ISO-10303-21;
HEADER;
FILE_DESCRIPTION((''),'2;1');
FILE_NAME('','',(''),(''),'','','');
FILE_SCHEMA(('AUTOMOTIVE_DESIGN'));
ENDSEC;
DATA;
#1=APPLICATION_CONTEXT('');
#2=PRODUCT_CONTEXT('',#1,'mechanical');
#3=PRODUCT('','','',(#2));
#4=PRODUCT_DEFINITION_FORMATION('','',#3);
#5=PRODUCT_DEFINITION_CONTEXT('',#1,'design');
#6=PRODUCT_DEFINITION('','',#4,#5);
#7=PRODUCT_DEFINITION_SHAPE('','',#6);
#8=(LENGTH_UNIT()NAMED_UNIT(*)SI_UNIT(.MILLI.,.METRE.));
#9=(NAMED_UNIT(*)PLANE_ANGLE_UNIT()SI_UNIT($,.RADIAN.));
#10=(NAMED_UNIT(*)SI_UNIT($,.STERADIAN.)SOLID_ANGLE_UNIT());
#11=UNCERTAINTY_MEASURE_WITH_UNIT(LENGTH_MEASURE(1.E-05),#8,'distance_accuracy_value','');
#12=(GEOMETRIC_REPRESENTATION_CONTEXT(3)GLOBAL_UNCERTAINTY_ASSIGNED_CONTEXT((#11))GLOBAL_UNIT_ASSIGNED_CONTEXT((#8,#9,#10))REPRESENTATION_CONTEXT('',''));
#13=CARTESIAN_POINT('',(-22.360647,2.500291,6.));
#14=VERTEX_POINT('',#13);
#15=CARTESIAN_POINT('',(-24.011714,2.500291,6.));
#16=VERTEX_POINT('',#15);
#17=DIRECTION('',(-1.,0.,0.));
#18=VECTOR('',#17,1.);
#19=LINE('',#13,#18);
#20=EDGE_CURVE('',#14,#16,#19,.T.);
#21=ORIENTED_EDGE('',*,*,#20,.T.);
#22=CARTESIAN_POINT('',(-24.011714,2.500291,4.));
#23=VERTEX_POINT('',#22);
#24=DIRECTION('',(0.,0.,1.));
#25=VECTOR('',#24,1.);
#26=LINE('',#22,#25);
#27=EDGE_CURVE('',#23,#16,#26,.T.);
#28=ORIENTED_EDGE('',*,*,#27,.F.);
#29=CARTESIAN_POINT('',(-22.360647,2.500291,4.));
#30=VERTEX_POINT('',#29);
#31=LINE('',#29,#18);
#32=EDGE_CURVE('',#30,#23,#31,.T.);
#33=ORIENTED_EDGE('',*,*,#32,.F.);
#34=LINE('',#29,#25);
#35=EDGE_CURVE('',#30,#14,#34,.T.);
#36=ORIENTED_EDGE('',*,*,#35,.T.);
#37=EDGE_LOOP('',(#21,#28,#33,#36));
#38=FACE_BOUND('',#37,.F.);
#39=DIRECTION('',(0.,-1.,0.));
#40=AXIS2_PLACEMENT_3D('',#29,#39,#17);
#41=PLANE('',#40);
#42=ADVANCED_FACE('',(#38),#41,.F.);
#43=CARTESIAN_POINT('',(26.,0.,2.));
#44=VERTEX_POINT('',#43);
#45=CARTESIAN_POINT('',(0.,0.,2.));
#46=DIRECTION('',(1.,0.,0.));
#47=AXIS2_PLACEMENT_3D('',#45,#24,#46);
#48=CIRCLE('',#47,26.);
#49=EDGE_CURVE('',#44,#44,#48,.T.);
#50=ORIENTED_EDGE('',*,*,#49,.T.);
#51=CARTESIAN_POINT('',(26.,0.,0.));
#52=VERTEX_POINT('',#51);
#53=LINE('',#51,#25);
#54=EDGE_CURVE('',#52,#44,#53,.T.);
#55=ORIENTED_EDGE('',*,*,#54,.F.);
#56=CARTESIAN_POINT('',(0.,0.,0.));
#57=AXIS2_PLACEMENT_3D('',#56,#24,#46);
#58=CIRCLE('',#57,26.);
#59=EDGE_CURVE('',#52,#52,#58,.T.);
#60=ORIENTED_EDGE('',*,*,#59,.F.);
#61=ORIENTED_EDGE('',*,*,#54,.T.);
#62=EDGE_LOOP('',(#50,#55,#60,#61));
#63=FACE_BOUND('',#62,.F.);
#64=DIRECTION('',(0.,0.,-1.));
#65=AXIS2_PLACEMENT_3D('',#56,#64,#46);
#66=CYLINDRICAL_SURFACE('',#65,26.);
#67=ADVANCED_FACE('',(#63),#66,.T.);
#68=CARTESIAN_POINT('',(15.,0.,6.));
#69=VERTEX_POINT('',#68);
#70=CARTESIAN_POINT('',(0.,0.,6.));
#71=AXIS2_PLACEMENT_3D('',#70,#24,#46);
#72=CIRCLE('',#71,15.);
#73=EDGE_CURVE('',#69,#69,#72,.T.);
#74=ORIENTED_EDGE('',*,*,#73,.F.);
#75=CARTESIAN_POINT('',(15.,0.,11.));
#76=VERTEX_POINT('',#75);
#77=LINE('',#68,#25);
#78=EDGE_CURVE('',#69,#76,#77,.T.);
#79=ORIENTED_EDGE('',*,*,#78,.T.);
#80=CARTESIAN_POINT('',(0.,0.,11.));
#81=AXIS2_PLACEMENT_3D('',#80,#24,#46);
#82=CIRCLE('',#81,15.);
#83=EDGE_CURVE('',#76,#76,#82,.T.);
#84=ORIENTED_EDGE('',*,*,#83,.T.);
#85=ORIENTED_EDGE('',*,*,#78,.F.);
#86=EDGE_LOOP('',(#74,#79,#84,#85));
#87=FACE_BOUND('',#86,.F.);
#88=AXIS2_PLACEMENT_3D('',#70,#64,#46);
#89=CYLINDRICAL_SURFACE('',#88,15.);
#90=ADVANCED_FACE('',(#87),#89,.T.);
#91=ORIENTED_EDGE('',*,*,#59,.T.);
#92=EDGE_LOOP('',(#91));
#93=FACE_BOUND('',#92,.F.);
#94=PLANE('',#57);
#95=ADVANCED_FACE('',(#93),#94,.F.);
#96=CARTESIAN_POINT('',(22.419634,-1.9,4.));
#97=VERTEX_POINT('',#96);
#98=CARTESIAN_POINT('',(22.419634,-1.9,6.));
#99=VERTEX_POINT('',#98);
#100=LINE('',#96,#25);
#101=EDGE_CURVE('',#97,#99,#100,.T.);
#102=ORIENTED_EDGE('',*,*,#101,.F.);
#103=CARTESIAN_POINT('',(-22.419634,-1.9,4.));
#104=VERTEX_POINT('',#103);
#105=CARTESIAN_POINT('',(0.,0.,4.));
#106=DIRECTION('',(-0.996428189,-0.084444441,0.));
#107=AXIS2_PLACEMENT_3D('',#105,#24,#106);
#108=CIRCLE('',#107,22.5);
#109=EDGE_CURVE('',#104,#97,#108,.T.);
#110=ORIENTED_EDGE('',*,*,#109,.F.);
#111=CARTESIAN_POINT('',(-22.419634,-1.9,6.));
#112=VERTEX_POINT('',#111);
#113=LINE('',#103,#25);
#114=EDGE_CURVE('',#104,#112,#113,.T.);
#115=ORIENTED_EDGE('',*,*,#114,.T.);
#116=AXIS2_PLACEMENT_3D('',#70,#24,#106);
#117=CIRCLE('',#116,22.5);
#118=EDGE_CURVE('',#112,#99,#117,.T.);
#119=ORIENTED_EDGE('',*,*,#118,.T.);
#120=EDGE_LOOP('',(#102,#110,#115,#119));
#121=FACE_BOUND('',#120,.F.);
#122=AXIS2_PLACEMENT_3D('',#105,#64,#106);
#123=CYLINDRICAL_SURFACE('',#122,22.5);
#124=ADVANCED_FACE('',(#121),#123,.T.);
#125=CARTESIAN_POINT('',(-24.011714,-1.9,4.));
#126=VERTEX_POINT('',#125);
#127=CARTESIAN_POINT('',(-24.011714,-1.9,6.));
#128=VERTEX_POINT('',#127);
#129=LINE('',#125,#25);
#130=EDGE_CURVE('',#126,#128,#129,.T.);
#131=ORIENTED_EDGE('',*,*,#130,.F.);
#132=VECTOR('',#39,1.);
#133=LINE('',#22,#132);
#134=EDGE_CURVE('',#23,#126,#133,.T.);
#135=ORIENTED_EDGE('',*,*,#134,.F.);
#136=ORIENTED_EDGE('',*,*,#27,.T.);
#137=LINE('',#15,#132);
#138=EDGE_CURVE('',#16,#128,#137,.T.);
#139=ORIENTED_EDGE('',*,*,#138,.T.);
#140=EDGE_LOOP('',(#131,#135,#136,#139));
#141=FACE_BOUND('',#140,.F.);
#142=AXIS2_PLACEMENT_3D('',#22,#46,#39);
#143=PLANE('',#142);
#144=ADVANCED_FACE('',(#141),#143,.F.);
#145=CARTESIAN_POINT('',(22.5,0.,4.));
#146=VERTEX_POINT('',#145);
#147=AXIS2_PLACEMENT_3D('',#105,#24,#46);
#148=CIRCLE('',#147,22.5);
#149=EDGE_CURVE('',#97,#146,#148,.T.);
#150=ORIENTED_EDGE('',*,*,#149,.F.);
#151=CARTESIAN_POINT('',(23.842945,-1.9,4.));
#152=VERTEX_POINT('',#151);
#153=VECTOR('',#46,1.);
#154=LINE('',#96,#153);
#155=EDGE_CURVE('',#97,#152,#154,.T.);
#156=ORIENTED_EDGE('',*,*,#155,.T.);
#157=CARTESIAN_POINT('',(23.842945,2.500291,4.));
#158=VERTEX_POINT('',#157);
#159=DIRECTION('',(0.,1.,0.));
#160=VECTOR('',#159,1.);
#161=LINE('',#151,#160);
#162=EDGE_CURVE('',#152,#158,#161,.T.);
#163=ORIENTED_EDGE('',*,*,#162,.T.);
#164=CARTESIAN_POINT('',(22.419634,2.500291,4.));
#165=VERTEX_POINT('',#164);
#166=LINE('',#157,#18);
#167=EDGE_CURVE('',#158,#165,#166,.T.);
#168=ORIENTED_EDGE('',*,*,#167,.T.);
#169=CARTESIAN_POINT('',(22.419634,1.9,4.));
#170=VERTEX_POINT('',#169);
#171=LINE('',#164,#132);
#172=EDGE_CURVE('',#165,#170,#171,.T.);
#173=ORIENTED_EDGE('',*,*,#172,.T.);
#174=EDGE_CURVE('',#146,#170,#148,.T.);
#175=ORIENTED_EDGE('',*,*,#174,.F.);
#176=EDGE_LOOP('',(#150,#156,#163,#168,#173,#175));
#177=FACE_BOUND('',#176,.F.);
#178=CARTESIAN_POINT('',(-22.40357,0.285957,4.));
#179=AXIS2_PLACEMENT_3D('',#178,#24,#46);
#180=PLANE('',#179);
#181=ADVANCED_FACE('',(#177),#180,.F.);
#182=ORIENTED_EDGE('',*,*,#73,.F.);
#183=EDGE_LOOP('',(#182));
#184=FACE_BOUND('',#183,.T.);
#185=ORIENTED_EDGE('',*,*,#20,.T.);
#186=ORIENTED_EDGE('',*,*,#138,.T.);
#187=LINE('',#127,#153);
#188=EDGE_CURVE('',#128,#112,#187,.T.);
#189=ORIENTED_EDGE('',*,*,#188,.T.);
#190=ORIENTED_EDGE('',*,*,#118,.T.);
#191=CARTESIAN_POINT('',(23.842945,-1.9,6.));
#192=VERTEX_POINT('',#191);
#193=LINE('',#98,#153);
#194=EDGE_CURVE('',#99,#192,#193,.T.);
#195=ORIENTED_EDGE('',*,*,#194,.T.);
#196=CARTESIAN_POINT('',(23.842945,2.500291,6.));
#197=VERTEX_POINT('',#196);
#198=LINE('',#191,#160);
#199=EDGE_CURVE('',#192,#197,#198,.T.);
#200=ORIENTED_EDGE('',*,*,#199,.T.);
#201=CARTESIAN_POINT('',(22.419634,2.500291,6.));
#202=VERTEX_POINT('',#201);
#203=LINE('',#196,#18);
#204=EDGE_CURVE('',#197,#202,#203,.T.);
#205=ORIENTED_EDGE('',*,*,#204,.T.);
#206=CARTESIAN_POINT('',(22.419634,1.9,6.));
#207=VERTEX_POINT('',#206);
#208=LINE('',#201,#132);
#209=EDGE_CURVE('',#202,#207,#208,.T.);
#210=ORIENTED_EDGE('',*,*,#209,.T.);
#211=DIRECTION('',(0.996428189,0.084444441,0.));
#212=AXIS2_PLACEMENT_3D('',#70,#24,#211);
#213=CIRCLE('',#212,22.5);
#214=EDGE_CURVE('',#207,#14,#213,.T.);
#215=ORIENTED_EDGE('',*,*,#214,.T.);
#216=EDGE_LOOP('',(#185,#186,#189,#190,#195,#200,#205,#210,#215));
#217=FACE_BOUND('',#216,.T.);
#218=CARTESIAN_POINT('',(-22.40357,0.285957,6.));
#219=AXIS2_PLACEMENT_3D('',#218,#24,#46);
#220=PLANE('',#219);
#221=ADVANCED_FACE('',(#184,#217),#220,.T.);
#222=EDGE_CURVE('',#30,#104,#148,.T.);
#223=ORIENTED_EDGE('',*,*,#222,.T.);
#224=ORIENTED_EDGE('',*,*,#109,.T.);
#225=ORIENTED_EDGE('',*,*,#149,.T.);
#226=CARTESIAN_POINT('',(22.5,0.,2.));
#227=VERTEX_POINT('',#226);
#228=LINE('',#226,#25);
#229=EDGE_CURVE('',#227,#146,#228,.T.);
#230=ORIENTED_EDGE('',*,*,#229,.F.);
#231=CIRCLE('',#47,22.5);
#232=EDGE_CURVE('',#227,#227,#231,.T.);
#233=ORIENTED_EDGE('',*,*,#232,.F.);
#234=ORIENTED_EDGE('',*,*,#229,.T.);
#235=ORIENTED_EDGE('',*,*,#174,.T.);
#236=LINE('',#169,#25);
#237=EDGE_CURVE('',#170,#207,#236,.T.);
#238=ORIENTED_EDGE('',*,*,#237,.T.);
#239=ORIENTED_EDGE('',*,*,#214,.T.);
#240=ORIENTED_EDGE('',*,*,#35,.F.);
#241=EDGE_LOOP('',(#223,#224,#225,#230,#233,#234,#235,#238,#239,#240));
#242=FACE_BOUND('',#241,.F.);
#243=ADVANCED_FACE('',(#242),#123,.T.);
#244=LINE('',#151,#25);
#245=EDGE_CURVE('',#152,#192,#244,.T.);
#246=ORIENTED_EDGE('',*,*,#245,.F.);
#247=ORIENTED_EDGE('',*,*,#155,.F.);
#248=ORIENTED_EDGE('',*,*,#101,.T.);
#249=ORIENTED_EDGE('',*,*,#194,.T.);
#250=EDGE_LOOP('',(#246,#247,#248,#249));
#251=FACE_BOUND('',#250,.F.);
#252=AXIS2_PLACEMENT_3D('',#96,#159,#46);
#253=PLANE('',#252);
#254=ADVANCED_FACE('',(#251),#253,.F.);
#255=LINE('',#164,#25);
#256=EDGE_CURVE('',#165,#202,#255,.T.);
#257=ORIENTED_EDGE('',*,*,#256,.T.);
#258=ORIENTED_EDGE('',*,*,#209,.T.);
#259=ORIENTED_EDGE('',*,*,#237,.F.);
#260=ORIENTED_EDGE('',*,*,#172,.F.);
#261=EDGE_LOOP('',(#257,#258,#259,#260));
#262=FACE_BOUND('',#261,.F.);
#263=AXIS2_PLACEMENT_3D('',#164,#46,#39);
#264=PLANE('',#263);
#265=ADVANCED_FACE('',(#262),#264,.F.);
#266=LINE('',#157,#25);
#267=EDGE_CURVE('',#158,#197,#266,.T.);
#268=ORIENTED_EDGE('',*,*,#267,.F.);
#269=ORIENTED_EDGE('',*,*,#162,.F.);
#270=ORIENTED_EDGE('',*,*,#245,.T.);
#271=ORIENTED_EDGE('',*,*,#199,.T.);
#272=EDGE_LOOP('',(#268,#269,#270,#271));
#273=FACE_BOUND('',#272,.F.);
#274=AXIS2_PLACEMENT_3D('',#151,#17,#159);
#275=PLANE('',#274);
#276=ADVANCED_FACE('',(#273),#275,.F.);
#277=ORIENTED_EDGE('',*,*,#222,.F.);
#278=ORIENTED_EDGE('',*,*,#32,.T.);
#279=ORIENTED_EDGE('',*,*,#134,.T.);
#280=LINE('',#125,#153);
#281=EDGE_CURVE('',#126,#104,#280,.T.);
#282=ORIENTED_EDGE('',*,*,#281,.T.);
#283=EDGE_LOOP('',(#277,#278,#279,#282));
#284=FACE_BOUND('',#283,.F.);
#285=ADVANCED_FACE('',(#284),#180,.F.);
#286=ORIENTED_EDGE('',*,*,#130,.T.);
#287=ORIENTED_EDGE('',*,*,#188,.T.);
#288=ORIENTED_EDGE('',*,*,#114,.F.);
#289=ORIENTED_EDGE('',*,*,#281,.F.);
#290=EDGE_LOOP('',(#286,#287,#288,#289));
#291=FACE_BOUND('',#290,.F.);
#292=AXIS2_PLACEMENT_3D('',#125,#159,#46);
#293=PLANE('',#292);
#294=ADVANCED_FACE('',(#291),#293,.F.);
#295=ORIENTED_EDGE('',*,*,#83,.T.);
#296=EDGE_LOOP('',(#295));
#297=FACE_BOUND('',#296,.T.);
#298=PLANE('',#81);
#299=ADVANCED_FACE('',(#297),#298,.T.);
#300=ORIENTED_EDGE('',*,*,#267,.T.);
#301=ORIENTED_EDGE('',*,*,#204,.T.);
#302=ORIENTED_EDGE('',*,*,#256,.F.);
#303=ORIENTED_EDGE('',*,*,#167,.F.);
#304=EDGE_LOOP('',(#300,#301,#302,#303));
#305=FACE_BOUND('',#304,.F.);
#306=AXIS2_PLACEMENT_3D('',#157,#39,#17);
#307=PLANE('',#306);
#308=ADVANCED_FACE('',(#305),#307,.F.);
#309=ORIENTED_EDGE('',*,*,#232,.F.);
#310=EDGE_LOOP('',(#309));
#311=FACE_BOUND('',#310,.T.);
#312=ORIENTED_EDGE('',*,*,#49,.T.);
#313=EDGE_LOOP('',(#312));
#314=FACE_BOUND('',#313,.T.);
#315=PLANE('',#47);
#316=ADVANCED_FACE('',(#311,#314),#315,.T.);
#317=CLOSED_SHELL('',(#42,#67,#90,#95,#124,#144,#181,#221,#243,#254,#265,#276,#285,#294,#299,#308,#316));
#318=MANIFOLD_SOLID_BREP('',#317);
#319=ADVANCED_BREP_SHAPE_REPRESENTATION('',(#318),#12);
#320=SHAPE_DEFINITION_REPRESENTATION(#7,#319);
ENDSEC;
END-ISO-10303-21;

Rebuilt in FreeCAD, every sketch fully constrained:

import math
import FreeCAD as App
import Part
import Sketcher
Q = App.Units.Quantity

doc = App.newDocument("Part")
body = doc.addObject("PartDesign::Body", "Body")

sketch1 = doc.addObject("Sketcher::SketchObject", "Sketch")
body.addObject(sketch1)
sketch1.AttachmentSupport = (doc.XY_Plane, [""])
sketch1.MapMode = "FlatFace"
sketch1.addGeometry(Part.Circle(App.Vector(0, 0, 0), App.Vector(0, 0, 1), 26), False)
sketch1.addConstraint([
    Sketcher.Constraint("Coincident", 0, 3, -1, 1),
    Sketcher.Constraint("Diameter", 0, Q("52 mm")),
])
pad1 = doc.addObject("PartDesign::Pad", "Pad")
body.addObject(pad1)
pad1.Profile = sketch1
pad1.Length = 2

sketch2 = doc.addObject("Sketcher::SketchObject", "Sketch001")
body.addObject(sketch2)
sketch2.AttachmentSupport = (doc.XY_Plane, [""])
sketch2.MapMode = "FlatFace"
sketch2.AttachmentOffset = App.Placement(App.Vector(0, 0, 2), App.Rotation())
sketch2.addGeometry(Part.Circle(App.Vector(0, 0, 0), App.Vector(0, 0, 1), 22), False)
sketch2.addConstraint([
    Sketcher.Constraint("Coincident", 0, 3, -1, 1),
    Sketcher.Constraint("Diameter", 0, Q("45 mm")),
])
pad2 = doc.addObject("PartDesign::Pad", "Pad001")
body.addObject(pad2)
pad2.Profile = sketch2
pad2.Length = 2

sketch3 = doc.addObject("Sketcher::SketchObject", "Sketch002")
body.addObject(sketch3)
sketch3.AttachmentSupport = (doc.XY_Plane, [""])
sketch3.MapMode = "FlatFace"
sketch3.AttachmentOffset = App.Placement(App.Vector(0, 0, 4), App.Rotation())
sketch3.addGeometry([
    Part.ArcOfCircle(Part.Circle(App.Vector(0, 0, 0), App.Vector(0, 0, 1), 22.5), math.radians(-175), math.radians(-5)),
    Part.LineSegment(App.Vector(22.4, -1.9, 0), App.Vector(23.8, -1.9, 0)),
    Part.LineSegment(App.Vector(23.8, -1.9, 0), App.Vector(23.8, 2.5, 0)),
    Part.LineSegment(App.Vector(23.8, 2.5, 0), App.Vector(22.4, 2.5, 0)),
    Part.LineSegment(App.Vector(22.4, 2.5, 0), App.Vector(22.4, 1.9, 0)),
    Part.ArcOfCircle(Part.Circle(App.Vector(0, 0, 0), App.Vector(0, 0, 1), 22.5), math.radians(5), math.radians(174)),
    Part.LineSegment(App.Vector(-22.4, 2.5, 0), App.Vector(-24, 2.5, 0)),
    Part.LineSegment(App.Vector(-24, 2.5, 0), App.Vector(-24, -1.9, 0)),
    Part.LineSegment(App.Vector(-24, -1.9, 0), App.Vector(-22.4, -1.9, 0)),
], False)
sketch3.addConstraint([
    Sketcher.Constraint("Coincident", 0, 2, 1, 1),
    Sketcher.Constraint("Coincident", 1, 2, 2, 1),
    Sketcher.Constraint("Coincident", 2, 2, 3, 1),
    Sketcher.Constraint("Coincident", 3, 2, 4, 1),
    Sketcher.Constraint("Coincident", 4, 2, 5, 1),
    Sketcher.Constraint("Coincident", 5, 2, 6, 1),
    Sketcher.Constraint("Coincident", 6, 2, 7, 1),
    Sketcher.Constraint("Coincident", 7, 2, 8, 1),
    Sketcher.Constraint("Coincident", 8, 2, 0, 1),
    Sketcher.Constraint("Horizontal", 1),
    Sketcher.Constraint("Vertical", 2),
    Sketcher.Constraint("Horizontal", 3),
    Sketcher.Constraint("Vertical", 4),
    Sketcher.Constraint("Horizontal", 6),
    Sketcher.Constraint("Vertical", 7),
    Sketcher.Constraint("Horizontal", 8),
    Sketcher.Constraint("Coincident", 0, 3, -1, 1),
    Sketcher.Constraint("Coincident", 5, 3, -1, 1),
    Sketcher.Constraint("Equal", 0, 5),
    Sketcher.Constraint("Horizontal", 3, 2, 5, 2),
    Sketcher.Constraint("Horizontal", 1, 2, 7, 2),
    Sketcher.Constraint("Vertical", 0, 2, 3, 2),
    Sketcher.Constraint("Radius", 0, Q("22.5 mm")),
    Sketcher.Constraint("DistanceY", 0, 2, -1, 1, Q("1.9 mm")),
    Sketcher.Constraint("DistanceX", 1, 1, 1, 2, Q("1.423311 mm")),
    Sketcher.Constraint("DistanceX", 8, 1, 8, 2, Q("1.59208 mm")),
    Sketcher.Constraint("DistanceY", 2, 1, 2, 2, Q("4.400291 mm")),
])
pad3 = doc.addObject("PartDesign::Pad", "Pad002")
body.addObject(pad3)
pad3.Profile = sketch3
pad3.Length = 2

sketch4 = doc.addObject("Sketcher::SketchObject", "Sketch003")
body.addObject(sketch4)
sketch4.AttachmentSupport = (doc.XY_Plane, [""])
sketch4.MapMode = "FlatFace"
sketch4.AttachmentOffset = App.Placement(App.Vector(0, 0, 6), App.Rotation())
sketch4.addGeometry(Part.Circle(App.Vector(0, 0, 0), App.Vector(0, 0, 1), 15), False)
sketch4.addConstraint([
    Sketcher.Constraint("Coincident", 0, 3, -1, 1),
    Sketcher.Constraint("Diameter", 0, Q("30 mm")),
])
pad4 = doc.addObject("PartDesign::Pad", "Pad003")
body.addObject(pad4)
pad4.Profile = sketch4
pad4.Length = 5

doc.recompute()
